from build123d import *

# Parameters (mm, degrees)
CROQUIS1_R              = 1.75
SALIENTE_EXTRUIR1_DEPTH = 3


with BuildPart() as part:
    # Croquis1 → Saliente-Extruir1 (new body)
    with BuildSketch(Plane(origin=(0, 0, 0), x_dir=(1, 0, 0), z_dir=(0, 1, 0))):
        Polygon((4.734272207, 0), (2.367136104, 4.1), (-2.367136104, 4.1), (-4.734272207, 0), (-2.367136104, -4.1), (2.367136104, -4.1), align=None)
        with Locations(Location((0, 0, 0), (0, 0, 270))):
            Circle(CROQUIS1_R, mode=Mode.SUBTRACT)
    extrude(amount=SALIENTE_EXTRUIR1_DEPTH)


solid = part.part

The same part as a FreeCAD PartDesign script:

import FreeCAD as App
import Part
import Sketcher

V = App.Vector
Q = App.Units.Quantity


def add_polygon(sketch, points):
    """Adds a closed chain of lines whose ends are joined by coincident constraints."""
    first, n = sketch.GeometryCount, len(points)
    for a, b in zip(points, points[1:] + points[:1]):
        sketch.addGeometry(Part.LineSegment(App.Vector(*a, 0), App.Vector(*b, 0)), False)
    for i in range(n):
        sketch.addConstraint(Sketcher.Constraint("Coincident", first + i, 2, first + (i + 1) % n, 1))

doc = App.newDocument("Part")
params = doc.addObject("Spreadsheet::Sheet", "Params")
for row, (alias, value) in enumerate([
    ("sketch1_diameter", "3.5 mm"),
    ("pad1_length", "3 mm"),
], start=1):
    params.set(f"A{row}", alias)
    params.set(f"B{row}", "=" + value)
    params.setAlias(f"B{row}", alias)

body = doc.addObject("PartDesign::Body", "Body")

sketch1 = body.newObject("Sketcher::SketchObject", "Sketch")
sketch1.AttachmentSupport = (doc.getObject("XZ_Plane"), [""])
sketch1.MapMode = "FlatFace"
add_polygon(sketch1, [(4.734272, 0), (2.367136, -4.1), (-2.367136, -4.1), (-4.734272, 0), (-2.367136, 4.1), (2.367136, 4.1)])
sketch1.addGeometry(Part.Circle(V(0, 0, 0), V(0, 0, 1), 1.75), False)
sketch1.addConstraint([
    Sketcher.Constraint("Horizontal", 1),
    Sketcher.Constraint("Horizontal", 4),
    Sketcher.Constraint("Coincident", 6, 3, -1, 1),
    Sketcher.Constraint("Symmetric", 0, 2, 3, 2, -1, 1),
    Sketcher.Constraint("Symmetric", 2, 2, 5, 2, -1, 1),
    Sketcher.Constraint("PointOnObject", 2, 2, -1),
    Sketcher.Constraint("Parallel", 2, 5),
    Sketcher.Constraint("Vertical", 1, 2, 3, 2),
    Sketcher.Constraint("Diameter", 6, Q("3.5 mm")),
    Sketcher.Constraint("Angle", 0, Q("-120 deg")),
    Sketcher.Constraint("DistanceY", 0, 2, -1, 1, Q("4.1 mm")),
    Sketcher.Constraint("DistanceX", 1, 2, 1, 1, Q("4.734272 mm")),
])
sketch1.setExpression("Constraints[14]", "Params.sketch1_diameter")
pad1 = body.newObject("PartDesign::Pad", "Pad")
pad1.Profile = sketch1
pad1.setExpression("Length", "Params.pad1_length")
pad1.Reversed = True

doc.recompute()
